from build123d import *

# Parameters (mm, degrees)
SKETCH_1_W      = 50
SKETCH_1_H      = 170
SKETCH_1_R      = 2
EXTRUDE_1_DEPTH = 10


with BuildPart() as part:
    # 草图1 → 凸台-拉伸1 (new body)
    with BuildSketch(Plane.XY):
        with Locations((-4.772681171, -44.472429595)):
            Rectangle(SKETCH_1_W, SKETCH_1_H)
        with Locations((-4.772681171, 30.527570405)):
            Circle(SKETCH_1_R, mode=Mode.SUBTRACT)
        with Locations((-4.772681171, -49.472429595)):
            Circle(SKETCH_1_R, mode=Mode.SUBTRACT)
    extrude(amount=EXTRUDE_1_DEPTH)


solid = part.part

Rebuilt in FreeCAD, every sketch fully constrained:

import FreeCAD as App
import Part
import Sketcher
from FreeCAD import Vector
Q = App.Units.Quantity


def add_polygon(sketch, points):
    """Adds a closed chain of lines whose ends are joined by coincident constraints."""
    first, n = sketch.GeometryCount, len(points)
    for a, b in zip(points, points[1:] + points[:1]):
        sketch.addGeometry(Part.LineSegment(App.Vector(*a, 0), App.Vector(*b, 0)), False)
    for i in range(n):
        sketch.addConstraint(Sketcher.Constraint("Coincident", first + i, 2, first + (i + 1) % n, 1))

doc = App.newDocument("Part")
body = doc.addObject("PartDesign::Body", "Body")

# Sketch on XY plane
sketch1 = body.newObject("Sketcher::SketchObject", "Sketch")
sketch1.AttachmentSupport = (doc.getObject("XY_Plane"), [""])
sketch1.MapMode = "FlatFace"
add_polygon(sketch1, [(-29.8, 40.5), (-29.8, -129.5), (20.2, -129.5), (20.2, 40.5)])  # lines 0-3
sketch1.addGeometry(Part.Circle(Vector(-4.8, -49.5, 0), Vector(0, 0, 1), 2), False)  # 4
sketch1.addGeometry(Part.Circle(Vector(-4.8, 30.5, 0), Vector(0, 0, 1), 2), False)  # 5
sketch1.addConstraint([
    Sketcher.Constraint("Vertical", 0),
    Sketcher.Constraint("Horizontal", 1),
    Sketcher.Constraint("Vertical", 2),
    Sketcher.Constraint("Horizontal", 3),
    Sketcher.Constraint("Equal", 4, 5),
    Sketcher.Constraint("Vertical", 4, 3, 5, 3),
    Sketcher.Constraint("Diameter", 4, Q("4 mm")),
    Sketcher.Constraint("DistanceX", 1, 1, 1, 2, Q("50 mm")),
    Sketcher.Constraint("DistanceY", 0, 2, 0, 1, Q("170 mm")),
    Sketcher.Constraint("DistanceY", 4, 3, 5, 3, Q("80 mm")),
    Sketcher.Constraint("DistanceX", 0, 2, 4, 3, Q("25 mm")),
    Sketcher.Constraint("DistanceY", 0, 2, 4, 3, Q("80 mm")),
    Sketcher.Constraint("DistanceX", 4, 3, -1, 1, Q("4.772681 mm")),
    Sketcher.Constraint("DistanceY", 4, 3, -1, 1, Q("49.47243 mm")),
])
pad1 = body.newObject("PartDesign::Pad", "Pad")
pad1.Profile = sketch1
pad1.Length = 10

doc.recompute()
